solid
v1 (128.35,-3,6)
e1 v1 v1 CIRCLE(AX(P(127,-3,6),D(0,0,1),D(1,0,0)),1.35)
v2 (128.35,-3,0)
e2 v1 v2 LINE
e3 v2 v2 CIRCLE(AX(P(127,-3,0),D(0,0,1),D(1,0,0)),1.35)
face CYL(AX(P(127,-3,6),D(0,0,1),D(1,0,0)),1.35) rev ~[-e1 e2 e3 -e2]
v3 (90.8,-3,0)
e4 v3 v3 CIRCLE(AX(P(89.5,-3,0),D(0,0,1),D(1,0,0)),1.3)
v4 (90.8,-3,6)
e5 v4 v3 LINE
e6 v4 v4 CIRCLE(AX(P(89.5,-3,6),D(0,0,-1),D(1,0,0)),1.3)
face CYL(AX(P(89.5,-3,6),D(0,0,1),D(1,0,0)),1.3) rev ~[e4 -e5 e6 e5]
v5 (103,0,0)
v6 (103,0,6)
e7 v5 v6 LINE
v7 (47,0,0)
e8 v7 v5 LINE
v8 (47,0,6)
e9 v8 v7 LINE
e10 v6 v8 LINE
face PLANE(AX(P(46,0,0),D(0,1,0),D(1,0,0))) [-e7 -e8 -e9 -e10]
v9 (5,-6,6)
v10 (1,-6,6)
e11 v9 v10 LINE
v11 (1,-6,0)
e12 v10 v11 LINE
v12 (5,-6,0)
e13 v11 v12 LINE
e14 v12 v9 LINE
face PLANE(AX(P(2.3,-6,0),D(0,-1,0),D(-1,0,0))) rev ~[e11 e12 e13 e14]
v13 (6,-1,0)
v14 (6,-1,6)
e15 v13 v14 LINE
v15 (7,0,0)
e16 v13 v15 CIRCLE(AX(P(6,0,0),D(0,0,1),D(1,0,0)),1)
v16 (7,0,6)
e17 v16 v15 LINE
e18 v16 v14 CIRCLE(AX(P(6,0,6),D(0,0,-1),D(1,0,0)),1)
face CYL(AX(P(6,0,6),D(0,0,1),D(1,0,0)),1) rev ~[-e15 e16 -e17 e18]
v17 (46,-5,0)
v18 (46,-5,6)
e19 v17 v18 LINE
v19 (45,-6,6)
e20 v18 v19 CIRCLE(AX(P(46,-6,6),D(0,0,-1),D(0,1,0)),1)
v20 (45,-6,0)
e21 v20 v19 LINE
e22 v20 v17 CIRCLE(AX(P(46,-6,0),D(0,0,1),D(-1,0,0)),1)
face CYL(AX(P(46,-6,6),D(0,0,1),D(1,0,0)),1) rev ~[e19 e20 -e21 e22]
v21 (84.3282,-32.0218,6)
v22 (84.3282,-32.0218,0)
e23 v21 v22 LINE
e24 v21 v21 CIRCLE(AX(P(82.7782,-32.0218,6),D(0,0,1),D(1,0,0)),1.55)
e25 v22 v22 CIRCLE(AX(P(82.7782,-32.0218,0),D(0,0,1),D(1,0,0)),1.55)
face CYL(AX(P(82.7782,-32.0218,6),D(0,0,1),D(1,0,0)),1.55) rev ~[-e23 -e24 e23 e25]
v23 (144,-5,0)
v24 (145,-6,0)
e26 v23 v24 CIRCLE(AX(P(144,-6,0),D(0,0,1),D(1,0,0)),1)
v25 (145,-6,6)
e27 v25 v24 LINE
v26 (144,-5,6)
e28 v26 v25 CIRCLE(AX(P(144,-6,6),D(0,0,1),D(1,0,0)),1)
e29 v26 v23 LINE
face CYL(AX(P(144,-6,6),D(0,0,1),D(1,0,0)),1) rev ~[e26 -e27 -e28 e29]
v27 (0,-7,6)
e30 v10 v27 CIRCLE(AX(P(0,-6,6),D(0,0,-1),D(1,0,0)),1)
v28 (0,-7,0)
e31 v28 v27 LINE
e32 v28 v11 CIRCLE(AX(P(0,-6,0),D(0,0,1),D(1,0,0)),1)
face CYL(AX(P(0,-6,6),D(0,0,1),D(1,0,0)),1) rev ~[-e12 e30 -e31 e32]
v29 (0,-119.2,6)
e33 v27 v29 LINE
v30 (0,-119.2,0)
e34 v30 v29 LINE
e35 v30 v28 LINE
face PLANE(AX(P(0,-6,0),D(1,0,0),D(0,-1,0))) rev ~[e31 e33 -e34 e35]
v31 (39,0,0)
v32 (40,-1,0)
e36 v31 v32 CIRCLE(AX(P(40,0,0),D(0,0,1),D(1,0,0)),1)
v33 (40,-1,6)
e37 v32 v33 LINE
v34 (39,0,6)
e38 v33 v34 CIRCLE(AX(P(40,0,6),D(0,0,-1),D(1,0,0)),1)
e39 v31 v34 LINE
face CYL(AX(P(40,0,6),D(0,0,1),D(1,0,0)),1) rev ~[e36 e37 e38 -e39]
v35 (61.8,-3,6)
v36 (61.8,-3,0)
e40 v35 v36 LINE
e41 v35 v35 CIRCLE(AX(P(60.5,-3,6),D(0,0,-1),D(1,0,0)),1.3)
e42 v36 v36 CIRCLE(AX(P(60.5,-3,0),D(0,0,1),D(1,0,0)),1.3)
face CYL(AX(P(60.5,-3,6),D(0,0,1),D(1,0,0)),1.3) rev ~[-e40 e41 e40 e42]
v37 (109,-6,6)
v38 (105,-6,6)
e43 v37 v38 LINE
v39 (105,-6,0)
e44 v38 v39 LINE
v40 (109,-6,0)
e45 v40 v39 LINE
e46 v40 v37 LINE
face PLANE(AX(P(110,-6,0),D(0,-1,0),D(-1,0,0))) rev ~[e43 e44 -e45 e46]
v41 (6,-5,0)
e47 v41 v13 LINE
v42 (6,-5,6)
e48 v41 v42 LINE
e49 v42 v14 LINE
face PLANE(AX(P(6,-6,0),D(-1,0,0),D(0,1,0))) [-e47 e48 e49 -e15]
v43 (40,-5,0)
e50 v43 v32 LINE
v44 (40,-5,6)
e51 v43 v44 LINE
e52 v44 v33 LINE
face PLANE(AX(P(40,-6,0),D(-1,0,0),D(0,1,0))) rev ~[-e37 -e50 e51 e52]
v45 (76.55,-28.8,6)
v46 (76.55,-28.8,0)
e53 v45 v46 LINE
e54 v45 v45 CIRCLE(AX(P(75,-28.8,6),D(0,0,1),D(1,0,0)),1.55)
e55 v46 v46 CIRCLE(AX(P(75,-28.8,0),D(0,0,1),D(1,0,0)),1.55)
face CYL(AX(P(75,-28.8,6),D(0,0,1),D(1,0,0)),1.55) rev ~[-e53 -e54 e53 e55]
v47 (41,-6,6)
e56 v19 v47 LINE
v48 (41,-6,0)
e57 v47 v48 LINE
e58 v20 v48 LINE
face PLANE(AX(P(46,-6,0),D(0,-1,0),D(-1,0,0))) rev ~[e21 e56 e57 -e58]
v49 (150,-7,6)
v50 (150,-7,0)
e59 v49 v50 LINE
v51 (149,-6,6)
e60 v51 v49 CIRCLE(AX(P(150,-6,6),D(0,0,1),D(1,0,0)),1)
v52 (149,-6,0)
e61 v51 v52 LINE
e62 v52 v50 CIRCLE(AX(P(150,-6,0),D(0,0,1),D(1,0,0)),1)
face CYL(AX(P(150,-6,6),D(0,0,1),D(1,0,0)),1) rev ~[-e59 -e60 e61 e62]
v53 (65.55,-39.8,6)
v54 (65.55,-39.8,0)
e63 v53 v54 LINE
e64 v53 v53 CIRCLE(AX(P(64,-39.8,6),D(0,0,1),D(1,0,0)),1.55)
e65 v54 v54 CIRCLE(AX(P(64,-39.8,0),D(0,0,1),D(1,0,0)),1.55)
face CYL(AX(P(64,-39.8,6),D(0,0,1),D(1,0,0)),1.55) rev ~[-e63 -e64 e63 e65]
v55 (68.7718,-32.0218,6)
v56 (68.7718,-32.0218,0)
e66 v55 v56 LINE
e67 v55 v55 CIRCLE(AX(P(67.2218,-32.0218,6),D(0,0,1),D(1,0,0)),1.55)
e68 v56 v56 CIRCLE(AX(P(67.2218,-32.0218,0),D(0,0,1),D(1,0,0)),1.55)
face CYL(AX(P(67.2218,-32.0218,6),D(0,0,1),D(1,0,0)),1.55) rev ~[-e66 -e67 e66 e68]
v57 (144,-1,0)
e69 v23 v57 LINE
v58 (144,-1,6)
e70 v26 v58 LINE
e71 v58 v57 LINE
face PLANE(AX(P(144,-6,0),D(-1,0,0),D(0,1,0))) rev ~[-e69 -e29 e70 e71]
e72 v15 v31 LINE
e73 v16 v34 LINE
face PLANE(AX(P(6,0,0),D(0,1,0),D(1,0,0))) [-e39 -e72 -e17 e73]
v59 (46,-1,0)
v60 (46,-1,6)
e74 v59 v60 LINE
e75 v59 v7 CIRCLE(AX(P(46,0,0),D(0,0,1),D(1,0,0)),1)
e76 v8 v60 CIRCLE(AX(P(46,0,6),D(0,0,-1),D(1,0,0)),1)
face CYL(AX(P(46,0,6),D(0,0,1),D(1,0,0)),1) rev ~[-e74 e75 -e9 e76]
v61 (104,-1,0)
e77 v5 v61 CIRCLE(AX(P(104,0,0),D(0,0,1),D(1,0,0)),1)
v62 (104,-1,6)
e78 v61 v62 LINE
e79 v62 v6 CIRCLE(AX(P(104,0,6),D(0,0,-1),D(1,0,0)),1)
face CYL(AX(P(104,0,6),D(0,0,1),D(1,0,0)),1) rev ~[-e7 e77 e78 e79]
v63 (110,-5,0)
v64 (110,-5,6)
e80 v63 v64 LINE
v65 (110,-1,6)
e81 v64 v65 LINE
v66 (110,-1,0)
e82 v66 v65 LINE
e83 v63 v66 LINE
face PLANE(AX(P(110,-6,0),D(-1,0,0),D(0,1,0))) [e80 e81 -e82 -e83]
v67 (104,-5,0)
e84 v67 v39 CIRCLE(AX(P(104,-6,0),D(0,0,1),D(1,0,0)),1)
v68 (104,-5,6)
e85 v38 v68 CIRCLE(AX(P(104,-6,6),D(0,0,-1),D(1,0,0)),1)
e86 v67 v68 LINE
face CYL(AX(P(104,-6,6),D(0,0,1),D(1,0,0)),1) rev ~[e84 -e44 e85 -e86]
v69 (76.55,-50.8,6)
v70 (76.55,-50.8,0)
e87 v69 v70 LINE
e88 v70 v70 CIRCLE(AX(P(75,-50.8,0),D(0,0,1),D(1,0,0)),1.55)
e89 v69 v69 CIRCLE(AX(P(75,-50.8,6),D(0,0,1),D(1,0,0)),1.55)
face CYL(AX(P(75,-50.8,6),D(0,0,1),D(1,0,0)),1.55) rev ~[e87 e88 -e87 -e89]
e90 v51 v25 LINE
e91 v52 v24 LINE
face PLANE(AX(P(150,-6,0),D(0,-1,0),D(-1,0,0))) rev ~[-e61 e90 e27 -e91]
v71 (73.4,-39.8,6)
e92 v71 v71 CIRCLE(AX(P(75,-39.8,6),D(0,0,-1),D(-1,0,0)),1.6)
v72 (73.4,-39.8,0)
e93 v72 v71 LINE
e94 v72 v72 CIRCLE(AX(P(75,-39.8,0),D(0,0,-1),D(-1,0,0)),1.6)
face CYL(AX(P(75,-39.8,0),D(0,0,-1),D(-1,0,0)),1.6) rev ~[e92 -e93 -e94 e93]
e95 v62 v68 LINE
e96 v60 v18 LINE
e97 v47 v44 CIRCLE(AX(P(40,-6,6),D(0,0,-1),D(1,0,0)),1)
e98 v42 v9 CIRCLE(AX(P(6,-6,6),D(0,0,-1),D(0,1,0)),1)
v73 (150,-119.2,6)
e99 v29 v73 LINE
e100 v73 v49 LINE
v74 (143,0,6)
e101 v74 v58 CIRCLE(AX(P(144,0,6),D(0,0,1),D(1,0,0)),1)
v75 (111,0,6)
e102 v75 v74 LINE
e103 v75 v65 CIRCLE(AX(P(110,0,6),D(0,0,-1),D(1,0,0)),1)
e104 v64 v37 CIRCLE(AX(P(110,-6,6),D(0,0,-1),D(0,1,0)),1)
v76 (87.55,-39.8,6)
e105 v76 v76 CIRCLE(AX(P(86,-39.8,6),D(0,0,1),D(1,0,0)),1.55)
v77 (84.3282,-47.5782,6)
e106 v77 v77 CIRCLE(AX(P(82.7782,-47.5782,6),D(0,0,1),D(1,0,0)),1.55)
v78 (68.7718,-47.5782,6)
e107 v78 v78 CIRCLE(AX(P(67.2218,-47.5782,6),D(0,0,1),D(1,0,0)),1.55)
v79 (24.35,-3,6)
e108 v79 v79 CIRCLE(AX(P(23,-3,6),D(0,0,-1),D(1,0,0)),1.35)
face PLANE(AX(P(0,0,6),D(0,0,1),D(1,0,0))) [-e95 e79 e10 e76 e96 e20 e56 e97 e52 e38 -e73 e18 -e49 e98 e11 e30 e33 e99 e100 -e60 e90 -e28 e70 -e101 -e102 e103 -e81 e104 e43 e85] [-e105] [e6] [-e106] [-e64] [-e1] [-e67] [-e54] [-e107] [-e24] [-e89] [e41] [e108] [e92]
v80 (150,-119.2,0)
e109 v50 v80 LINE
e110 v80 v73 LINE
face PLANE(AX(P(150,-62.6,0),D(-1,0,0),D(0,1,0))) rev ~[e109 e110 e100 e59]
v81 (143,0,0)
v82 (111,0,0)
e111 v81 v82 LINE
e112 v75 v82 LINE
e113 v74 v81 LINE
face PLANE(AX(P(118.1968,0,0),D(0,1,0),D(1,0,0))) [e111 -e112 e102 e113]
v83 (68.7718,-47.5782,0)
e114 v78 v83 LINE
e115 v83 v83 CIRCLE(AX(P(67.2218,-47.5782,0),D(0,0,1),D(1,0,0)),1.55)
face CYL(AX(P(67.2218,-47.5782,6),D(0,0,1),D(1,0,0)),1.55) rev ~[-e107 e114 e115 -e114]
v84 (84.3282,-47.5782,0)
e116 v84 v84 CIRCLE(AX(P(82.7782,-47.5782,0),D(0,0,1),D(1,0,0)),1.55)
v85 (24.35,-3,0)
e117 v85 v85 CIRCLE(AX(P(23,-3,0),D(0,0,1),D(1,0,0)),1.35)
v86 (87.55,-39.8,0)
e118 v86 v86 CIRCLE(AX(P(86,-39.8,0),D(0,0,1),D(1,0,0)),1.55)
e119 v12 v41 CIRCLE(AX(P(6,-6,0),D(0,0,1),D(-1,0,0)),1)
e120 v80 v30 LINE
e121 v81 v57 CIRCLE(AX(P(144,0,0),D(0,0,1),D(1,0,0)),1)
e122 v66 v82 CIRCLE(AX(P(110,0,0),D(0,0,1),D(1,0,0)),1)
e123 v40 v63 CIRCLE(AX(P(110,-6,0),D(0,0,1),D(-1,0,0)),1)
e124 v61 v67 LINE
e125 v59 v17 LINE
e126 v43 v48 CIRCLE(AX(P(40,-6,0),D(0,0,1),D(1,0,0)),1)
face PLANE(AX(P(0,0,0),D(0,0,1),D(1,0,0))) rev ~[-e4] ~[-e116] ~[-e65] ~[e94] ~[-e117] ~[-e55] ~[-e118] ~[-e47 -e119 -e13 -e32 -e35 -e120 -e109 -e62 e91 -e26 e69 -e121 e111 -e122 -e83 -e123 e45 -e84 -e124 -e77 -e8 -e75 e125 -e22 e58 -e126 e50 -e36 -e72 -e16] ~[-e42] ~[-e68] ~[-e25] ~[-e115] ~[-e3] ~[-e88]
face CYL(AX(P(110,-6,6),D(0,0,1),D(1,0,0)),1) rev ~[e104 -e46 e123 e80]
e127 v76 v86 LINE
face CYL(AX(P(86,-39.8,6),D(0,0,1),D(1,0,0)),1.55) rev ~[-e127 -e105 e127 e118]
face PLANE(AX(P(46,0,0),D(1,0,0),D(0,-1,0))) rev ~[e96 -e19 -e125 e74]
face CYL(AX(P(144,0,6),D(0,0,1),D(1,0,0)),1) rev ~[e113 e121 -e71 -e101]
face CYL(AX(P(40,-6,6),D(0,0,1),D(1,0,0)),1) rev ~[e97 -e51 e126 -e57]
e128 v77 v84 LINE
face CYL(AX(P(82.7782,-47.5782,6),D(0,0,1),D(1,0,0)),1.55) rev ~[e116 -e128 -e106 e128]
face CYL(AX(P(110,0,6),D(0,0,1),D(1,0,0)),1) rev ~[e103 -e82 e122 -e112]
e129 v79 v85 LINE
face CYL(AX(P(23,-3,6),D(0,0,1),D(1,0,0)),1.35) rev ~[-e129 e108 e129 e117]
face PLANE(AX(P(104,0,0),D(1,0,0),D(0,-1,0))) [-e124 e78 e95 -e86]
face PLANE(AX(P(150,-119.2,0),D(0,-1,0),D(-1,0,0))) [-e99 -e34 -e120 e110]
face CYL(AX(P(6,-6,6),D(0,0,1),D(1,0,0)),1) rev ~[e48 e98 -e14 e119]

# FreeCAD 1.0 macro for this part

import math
import FreeCAD as App
import Part
import Sketcher
from FreeCAD import Vector
Q = App.Units.Quantity

doc = App.newDocument("Part")
body = doc.addObject("PartDesign::Body", "Body")

# Sketch on XY plane
sketch1 = body.newObject("Sketcher::SketchObject", "Sketch")
sketch1.AttachmentSupport = (doc.getObject("XY_Plane"), [""])
sketch1.MapMode = "FlatFace"
sketch1.addGeometry(Part.LineSegment(Vector(110, 0, 0), Vector(110, -6, 0)), False)
sketch1.addGeometry(Part.LineSegment(Vector(110, -6, 0), Vector(104, -6, 0)), False)
sketch1.addGeometry(Part.LineSegment(Vector(104, -6, 0), Vector(104, 0, 0)), False)
sketch1.addGeometry(Part.LineSegment(Vector(104, 0, 0), Vector(46, 0, 0)), False)
sketch1.addGeometry(Part.LineSegment(Vector(46, 0, 0), Vector(46, -6, 0)), False)
sketch1.addGeometry(Part.LineSegment(Vector(46, -6, 0), Vector(40, -6, 0)), False)
sketch1.addGeometry(Part.LineSegment(Vector(40, -6, 0), Vector(40, 0, 0)), False)
sketch1.addGeometry(Part.LineSegment(Vector(40, 0, 0), Vector(6, 0, 0)), False)
sketch1.addGeometry(Part.LineSegment(Vector(6, 0, 0), Vector(6, -6, 0)), False)
sketch1.addGeometry(Part.LineSegment(Vector(6, -6, 0), Vector(0, -6, 0)), False)
sketch1.addGeometry(Part.LineSegment(Vector(0, -6, 0), Vector(0, -119.2, 0)), False)
sketch1.addGeometry(Part.LineSegment(Vector(0, -119.2, 0), Vector(150, -119.2, 0)), False)
sketch1.addGeometry(Part.LineSegment(Vector(150, -119.2, 0), Vector(150, -6, 0)), False)
sketch1.addGeometry(Part.LineSegment(Vector(150, -6, 0), Vector(144, -6, 0)), False)
sketch1.addGeometry(Part.LineSegment(Vector(144, -6, 0), Vector(144, 0, 0)), False)
sketch1.addGeometry(Part.LineSegment(Vector(144, 0, 0), Vector(110, 0, 0)), False)
sketch1.addConstraint(Sketcher.Constraint("Coincident", 0, 2, 1, 1))
sketch1.addConstraint(Sketcher.Constraint("Coincident", 1, 2, 2, 1))
sketch1.addConstraint(Sketcher.Constraint("Coincident", 2, 2, 3, 1))
sketch1.addConstraint(Sketcher.Constraint("Coincident", 3, 2, 4, 1))
sketch1.addConstraint(Sketcher.Constraint("Coincident", 4, 2, 5, 1))
sketch1.addConstraint(Sketcher.Constraint("Coincident", 5, 2, 6, 1))
sketch1.addConstraint(Sketcher.Constraint("Coincident", 6, 2, 7, 1))
sketch1.addConstraint(Sketcher.Constraint("Coincident", 7, 2, 8, 1))
sketch1.addConstraint(Sketcher.Constraint("Coincident", 8, 2, 9, 1))
sketch1.addConstraint(Sketcher.Constraint("Coincident", 9, 2, 10, 1))
sketch1.addConstraint(Sketcher.Constraint("Coincident", 10, 2, 11, 1))
sketch1.addConstraint(Sketcher.Constraint("Coincident", 11, 2, 12, 1))
sketch1.addConstraint(Sketcher.Constraint("Coincident", 12, 2, 13, 1))
sketch1.addConstraint(Sketcher.Constraint("Coincident", 13, 2, 14, 1))
sketch1.addConstraint(Sketcher.Constraint("Coincident", 14, 2, 15, 1))
sketch1.addConstraint(Sketcher.Constraint("Coincident", 15, 2, 0, 1))
sketch1.addConstraint(Sketcher.Constraint("Vertical", 0))
sketch1.addConstraint(Sketcher.Constraint("Horizontal", 1))
sketch1.addConstraint(Sketcher.Constraint("Vertical", 2))
sketch1.addConstraint(Sketcher.Constraint("Horizontal", 3))
sketch1.addConstraint(Sketcher.Constraint("Vertical", 4))
sketch1.addConstraint(Sketcher.Constraint("Horizontal", 5))
sketch1.addConstraint(Sketcher.Constraint("Vertical", 6))
sketch1.addConstraint(Sketcher.Constraint("Horizontal", 7))
sketch1.addConstraint(Sketcher.Constraint("Vertical", 8))
sketch1.addConstraint(Sketcher.Constraint("Horizontal", 9))
sketch1.addConstraint(Sketcher.Constraint("Vertical", 10))
sketch1.addConstraint(Sketcher.Constraint("Horizontal", 11))
sketch1.addConstraint(Sketcher.Constraint("Vertical", 12))
sketch1.addConstraint(Sketcher.Constraint("Horizontal", 13))
sketch1.addConstraint(Sketcher.Constraint("Vertical", 14))
sketch1.addConstraint(Sketcher.Constraint("Horizontal", 15))
sketch1.addConstraint(Sketcher.Constraint("PointOnObject", 2, 2, -1))
sketch1.addConstraint(Sketcher.Constraint("PointOnObject", 6, 2, -1))
sketch1.addConstraint(Sketcher.Constraint("PointOnObject", 9, 2, -2))
sketch1.addConstraint(Sketcher.Constraint("PointOnObject", 14, 2, -1))
sketch1.addConstraint(Sketcher.Constraint("Horizontal", 1, 2, 4, 2))
sketch1.addConstraint(Sketcher.Constraint("Horizontal", 5, 2, 8, 2))
sketch1.addConstraint(Sketcher.Constraint("Horizontal", 9, 2, 12, 2))
sketch1.addConstraint(Sketcher.Constraint("Equal", 1, 5))
sketch1.addConstraint(Sketcher.Constraint("Equal", 5, 9))
sketch1.addConstraint(Sketcher.Constraint("Equal", 9, 13))
sketch1.addConstraint(Sketcher.Constraint("Equal", 7, 15))
sketch1.addConstraint(Sketcher.Constraint("Equal", 13, 0))
sketch1.addConstraint(Sketcher.Constraint("DistanceX", 1, 2, 1, 1, Q("6 mm")))
sketch1.addConstraint(Sketcher.Constraint("DistanceX", 3, 2, 3, 1, Q("58 mm")))
sketch1.addConstraint(Sketcher.Constraint("DistanceX", 7, 2, 7, 1, Q("34 mm")))
sketch1.addConstraint(Sketcher.Constraint("DistanceY", 10, 2, 10, 1, Q("113.2 mm")))
pad1 = body.newObject("PartDesign::Pad", "Pad")
pad1.Profile = sketch1
pad1.Length = 6

# Sketch on XY plane
sketch2 = body.newObject("Sketcher::SketchObject", "Sketch001")
sketch2.AttachmentSupport = (doc.getObject("XY_Plane"), [""])
sketch2.MapMode = "FlatFace"
sketch2.addGeometry(Part.Circle(Vector(75, -39.8, 0), Vector(0, 0, 1), 1.6), False)
sketch2.addConstraint(Sketcher.Constraint("Diameter", 0, Q("3.2 mm")))
sketch2.addConstraint(Sketcher.Constraint("DistanceX", -1, 1, 0, 3, Q("75 mm")))
sketch2.addConstraint(Sketcher.Constraint("DistanceY", 0, 3, -1, 1, Q("39.8 mm")))
pocket1 = body.newObject("PartDesign::Pocket", "Pocket")
pocket1.Profile = sketch2
pocket1.Type = "UpToFirst"
pocket1.Reversed = True

# Sketch on XY plane
sketch3 = body.newObject("Sketcher::SketchObject", "Sketch002")
sketch3.AttachmentSupport = (doc.getObject("XY_Plane"), [""])
sketch3.MapMode = "FlatFace"
sketch3.AttachmentOffset = App.Placement(Vector(0, 0, 6), App.Rotation())
sketch3.addGeometry(Part.Circle(Vector(6, 0, 0), Vector(0, 0, 1), 1), False)
sketch3.addGeometry(Part.Circle(Vector(6, -6, 0), Vector(0, 0, 1), 1), False)
sketch3.addGeometry(Part.Circle(Vector(40, 0, 0), Vector(0, 0, 1), 1), False)
sketch3.addGeometry(Part.Circle(Vector(0, -6, 0), Vector(0, 0, 1), 1), False)
sketch3.addGeometry(Part.Circle(Vector(40, -6, 0), Vector(0, 0, 1), 1), False)
sketch3.addGeometry(Part.Circle(Vector(46, -6, 0), Vector(0, 0, 1), 1), False)
sketch3.addGeometry(Part.ArcOfCircle(Part.Circle(Vector(150, -6, 0), Vector(0, 0, 1), 1), math.radians(180), math.radians(270)), False)
sketch3.addGeometry(Part.LineSegment(Vector(150, -7, 0), Vector(150, -6, 0)), False)
sketch3.addGeometry(Part.LineSegment(Vector(150, -6, 0), Vector(149, -6, 0)), False)
sketch3.addGeometry(Part.Circle(Vector(46, 0, 0), Vector(0, 0, 1), 1), False)
sketch3.addGeometry(Part.ArcOfCircle(Part.Circle(Vector(144, -6, 0), Vector(0, 0, 1), 1), math.radians(90), math.radians(360)), False)
sketch3.addGeometry(Part.LineSegment(Vector(145, -6, 0), Vector(144, -6, 0)), False)
sketch3.addGeometry(Part.LineSegment(Vector(144, -6, 0), Vector(144, -5, 0)), False)
sketch3.addGeometry(Part.Circle(Vector(104, 0, 0), Vector(0, 0, 1), 1), False)
sketch3.addGeometry(Part.ArcOfCircle(Part.Circle(Vector(144, 0, 0), Vector(0, 0, 1), 1), math.radians(180), math.radians(270)), False)
sketch3.addGeometry(Part.LineSegment(Vector(144, -1, 0), Vector(144, 0, 0)), False)
sketch3.addGeometry(Part.LineSegment(Vector(144, 0, 0), Vector(143, 0, 0)), False)
sketch3.addGeometry(Part.Circle(Vector(104, -6, 0), Vector(0, 0, 1), 1), False)
sketch3.addGeometry(Part.Circle(Vector(110, 0, 0), Vector(0, 0, 1), 1), False)
sketch3.addGeometry(Part.Circle(Vector(110, -6, 0), Vector(0, 0, 1), 1), False)
sketch3.addConstraint(Sketcher.Constraint("Coincident", 6, 2, 7, 1))
sketch3.addConstraint(Sketcher.Constraint("Coincident", 7, 2, 8, 1))
sketch3.addConstraint(Sketcher.Constraint("Coincident", 8, 2, 6, 1))
sketch3.addConstraint(Sketcher.Constraint("Coincident", 10, 2, 11, 1))
sketch3.addConstraint(Sketcher.Constraint("Coincident", 11, 2, 12, 1))
sketch3.addConstraint(Sketcher.Constraint("Coincident", 12, 2, 10, 1))
sketch3.addConstraint(Sketcher.Constraint("Coincident", 14, 2, 15, 1))
sketch3.addConstraint(Sketcher.Constraint("Coincident", 15, 2, 16, 1))
sketch3.addConstraint(Sketcher.Constraint("Coincident", 16, 2, 14, 1))
sketch3.addConstraint(Sketcher.Constraint("Vertical", 7))
sketch3.addConstraint(Sketcher.Constraint("Horizontal", 8))
sketch3.addConstraint(Sketcher.Constraint("Horizontal", 11))
sketch3.addConstraint(Sketcher.Constraint("Vertical", 12))
sketch3.addConstraint(Sketcher.Constraint("Vertical", 15))
sketch3.addConstraint(Sketcher.Constraint("Horizontal", 16))
sketch3.addConstraint(Sketcher.Constraint("Coincident", 7, 2, 6, 3))
sketch3.addConstraint(Sketcher.Constraint("Coincident", 11, 2, 10, 3))
sketch3.addConstraint(Sketcher.Constraint("Coincident", 15, 2, 14, 3))
sketch3.addConstraint(Sketcher.Constraint("Equal", 0, 1))
sketch3.addConstraint(Sketcher.Constraint("Equal", 1, 2))
sketch3.addConstraint(Sketcher.Constraint("Equal", 2, 3))
sketch3.addConstraint(Sketcher.Constraint("Equal", 3, 4))
sketch3.addConstraint(Sketcher.Constraint("Equal", 4, 5))
sketch3.addConstraint(Sketcher.Constraint("Equal", 5, 6))
sketch3.addConstraint(Sketcher.Constraint("Equal", 6, 9))
sketch3.addConstraint(Sketcher.Constraint("Equal", 9, 10))
sketch3.addConstraint(Sketcher.Constraint("Equal", 10, 13))
sketch3.addConstraint(Sketcher.Constraint("Equal", 13, 14))
sketch3.addConstraint(Sketcher.Constraint("Equal", 14, 17))
sketch3.addConstraint(Sketcher.Constraint("Equal", 17, 18))
sketch3.addConstraint(Sketcher.Constraint("Equal", 18, 19))
sketch3.addConstraint(Sketcher.Constraint("PointOnObject", 0, 3, -1))
sketch3.addConstraint(Sketcher.Constraint("PointOnObject", 2, 3, -1))
sketch3.addConstraint(Sketcher.Constraint("PointOnObject", 3, 3, -2))
sketch3.addConstraint(Sketcher.Constraint("PointOnObject", 9, 3, -1))
sketch3.addConstraint(Sketcher.Constraint("PointOnObject", 13, 3, -1))
sketch3.addConstraint(Sketcher.Constraint("PointOnObject", 14, 3, -1))
sketch3.addConstraint(Sketcher.Constraint("PointOnObject", 18, 3, -1))
sketch3.addConstraint(Sketcher.Constraint("Horizontal", 1, 3, 3, 3))
sketch3.addConstraint(Sketcher.Constraint("Horizontal", 3, 3, 4, 3))
sketch3.addConstraint(Sketcher.Constraint("Horizontal", 4, 3, 5, 3))
sketch3.addConstraint(Sketcher.Constraint("Horizontal", 5, 3, 6, 3))
sketch3.addConstraint(Sketcher.Constraint("Horizontal", 6, 3, 10, 3))
sketch3.addConstraint(Sketcher.Constraint("Horizontal", 10, 3, 17, 3))
sketch3.addConstraint(Sketcher.Constraint("Horizontal", 17, 3, 19, 3))
sketch3.addConstraint(Sketcher.Constraint("Vertical", 0, 3, 1, 3))
sketch3.addConstraint(Sketcher.Constraint("Vertical", 2, 3, 4, 3))
sketch3.addConstraint(Sketcher.Constraint("Vertical", 5, 3, 9, 3))
sketch3.addConstraint(Sketcher.Constraint("Vertical", 10, 3, 14, 3))
sketch3.addConstraint(Sketcher.Constraint("Vertical", 13, 3, 17, 3))
sketch3.addConstraint(Sketcher.Constraint("Vertical", 18, 3, 19, 3))
sketch3.addConstraint(Sketcher.Constraint("Diameter", 0, Q("2 mm")))
sketch3.addConstraint(Sketcher.Constraint("DistanceX", -1, 1, 0, 3, Q("6 mm")))
sketch3.addConstraint(Sketcher.Constraint("DistanceY", 1, 3, -1, 1, Q("6 mm")))
sketch3.addConstraint(Sketcher.Constraint("DistanceX", -1, 1, 2, 3, Q("40 mm")))
sketch3.addConstraint(Sketcher.Constraint("DistanceX", -1, 1, 5, 3, Q("46 mm")))
sketch3.addConstraint(Sketcher.Constraint("DistanceX", -1, 1, 6, 3, Q("150 mm")))
sketch3.addConstraint(Sketcher.Constraint("DistanceX", -1, 1, 10, 3, Q("144 mm")))
sketch3.addConstraint(Sketcher.Constraint("DistanceX", -1, 1, 13, 3, Q("104 mm")))
sketch3.addConstraint(Sketcher.Constraint("DistanceX", -1, 1, 18, 3, Q("110 mm")))
pocket2 = body.newObject("PartDesign::Pocket", "Pocket001")
pocket2.Profile = sketch3
pocket2.Type = "UpToFirst"

# Sketch on XY plane
sketch4 = body.newObject("Sketcher::SketchObject", "Sketch003")
sketch4.AttachmentSupport = (doc.getObject("XY_Plane"), [""])
sketch4.MapMode = "FlatFace"
sketch4.AttachmentOffset = App.Placement(Vector(0, 0, 6), App.Rotation())
sketch4.addGeometry(Part.Circle(Vector(60.5, -3, 0), Vector(0, 0, 1), 1.3), False)
sketch4.addGeometry(Part.Circle(Vector(23, -3, 0), Vector(0, 0, 1), 1.35), False)
sketch4.addGeometry(Part.Circle(Vector(89.5, -3, 0), Vector(0, 0, 1), 1.3), False)
sketch4.addGeometry(Part.Circle(Vector(127, -3, 0), Vector(0, 0, 1), 1.35), False)
sketch4.addConstraint(Sketcher.Constraint("Equal", 0, 2))
sketch4.addConstraint(Sketcher.Constraint("Equal", 1, 3))
sketch4.addConstraint(Sketcher.Constraint("Horizontal", 0, 3, 1, 3))
sketch4.addConstraint(Sketcher.Constraint("Horizontal", 1, 3, 2, 3))
sketch4.addConstraint(Sketcher.Constraint("Horizontal", 2, 3, 3, 3))
sketch4.addConstraint(Sketcher.Constraint("Diameter", 0, Q("2.6 mm")))
sketch4.addConstraint(Sketcher.Constraint("Diameter", 1, Q("2.7 mm")))
sketch4.addConstraint(Sketcher.Constraint("DistanceY", 0, 3, -1, 1, Q("3 mm")))
sketch4.addConstraint(Sketcher.Constraint("DistanceX", -1, 1, 1, 3, Q("23 mm")))
sketch4.addConstraint(Sketcher.Constraint("DistanceX", -1, 1, 3, 3, Q("127 mm")))
sketch4.addConstraint(Sketcher.Constraint("DistanceX", 0, 3, 2, 3, Q("29 mm")))
sketch4.addConstraint(Sketcher.Constraint("DistanceX", -1, 1, 0, 3, Q("60.5 mm")))
pocket3 = body.newObject("PartDesign::Pocket", "Pocket002")
pocket3.Profile = sketch4
pocket3.Length = 6

# Sketch on XY plane
sketch5 = body.newObject("Sketcher::SketchObject", "Sketch004")
sketch5.AttachmentSupport = (doc.getObject("XY_Plane"), [""])
sketch5.MapMode = "FlatFace"
sketch5.AttachmentOffset = App.Placement(Vector(0, 0, 6), App.Rotation())
sketch5.addGeometry(Part.Circle(Vector(82.7782, -32.0218, 0), Vector(0, 0, 1), 1.55), False)
sketch5.addGeometry(Part.Circle(Vector(75, -28.8, 0), Vector(0, 0, 1), 1.55), False)
sketch5.addGeometry(Part.Circle(Vector(67.2218, -32.0218, 0), Vector(0, 0, 1), 1.55), False)
sketch5.addGeometry(Part.Circle(Vector(64, -39.8, 0), Vector(0, 0, 1), 1.55), False)
sketch5.addGeometry(Part.Circle(Vector(67.2218, -47.5782, 0), Vector(0, 0, 1), 1.55), False)
sketch5.addGeometry(Part.Circle(Vector(75, -50.8, 0), Vector(0, 0, 1), 1.55), False)
sketch5.addGeometry(Part.Circle(Vector(82.7782, -47.5782, 0), Vector(0, 0, 1), 1.55), False)
sketch5.addGeometry(Part.Circle(Vector(86, -39.8, 0), Vector(0, 0, 1), 1.55), False)
sketch5.addConstraint(Sketcher.Constraint("Equal", 0, 1))
sketch5.addConstraint(Sketcher.Constraint("Equal", 1, 2))
sketch5.addConstraint(Sketcher.Constraint("Equal", 2, 3))
sketch5.addConstraint(Sketcher.Constraint("Equal", 3, 4))
sketch5.addConstraint(Sketcher.Constraint("Equal", 4, 5))
sketch5.addConstraint(Sketcher.Constraint("Equal", 5, 6))
sketch5.addConstraint(Sketcher.Constraint("Equal", 6, 7))
sketch5.addConstraint(Sketcher.Constraint("Horizontal", 0, 3, 2, 3))
sketch5.addConstraint(Sketcher.Constraint("Horizontal", 4, 3, 6, 3))
sketch5.addConstraint(Sketcher.Constraint("Horizontal", 3, 3, 7, 3))
sketch5.addConstraint(Sketcher.Constraint("Vertical", 2, 3, 4, 3))
sketch5.addConstraint(Sketcher.Constraint("Vertical", 1, 3, 5, 3))
sketch5.addConstraint(Sketcher.Constraint("Vertical", 0, 3, 6, 3))
sketch5.addConstraint(Sketcher.Constraint("Diameter", 0, Q("3.1 mm")))
sketch5.addConstraint(Sketcher.Constraint("DistanceX", -1, 1, 1, 3, Q("75 mm")))
sketch5.addConstraint(Sketcher.Constraint("DistanceX", -1, 1, 3, 3, Q("64 mm")))
sketch5.addConstraint(Sketcher.Constraint("DistanceX", -1, 1, 7, 3, Q("86 mm")))
sketch5.addConstraint(Sketcher.Constraint("DistanceY", 3, 3, 1, 3, Q("11 mm")))
sketch5.addConstraint(Sketcher.Constraint("DistanceY", 5, 3, 3, 3, Q("11 mm")))
sketch5.addConstraint(Sketcher.Constraint("DistanceY", 1, 3, -1, 1, Q("28.8 mm")))
sketch5.addConstraint(Sketcher.Constraint("DistanceX", -1, 1, 0, 3, Q("82.7782 mm")))
sketch5.addConstraint(Sketcher.Constraint("DistanceY", 0, 3, -1, 1, Q("32.0218 mm")))
sketch5.addConstraint(Sketcher.Constraint("DistanceX", -1, 1, 2, 3, Q("67.2218 mm")))
sketch5.addConstraint(Sketcher.Constraint("DistanceY", 4, 3, -1, 1, Q("47.5782 mm")))
pocket4 = body.newObject("PartDesign::Pocket", "Pocket003")
pocket4.Profile = sketch5
pocket4.Length = 10

doc.recompute()
